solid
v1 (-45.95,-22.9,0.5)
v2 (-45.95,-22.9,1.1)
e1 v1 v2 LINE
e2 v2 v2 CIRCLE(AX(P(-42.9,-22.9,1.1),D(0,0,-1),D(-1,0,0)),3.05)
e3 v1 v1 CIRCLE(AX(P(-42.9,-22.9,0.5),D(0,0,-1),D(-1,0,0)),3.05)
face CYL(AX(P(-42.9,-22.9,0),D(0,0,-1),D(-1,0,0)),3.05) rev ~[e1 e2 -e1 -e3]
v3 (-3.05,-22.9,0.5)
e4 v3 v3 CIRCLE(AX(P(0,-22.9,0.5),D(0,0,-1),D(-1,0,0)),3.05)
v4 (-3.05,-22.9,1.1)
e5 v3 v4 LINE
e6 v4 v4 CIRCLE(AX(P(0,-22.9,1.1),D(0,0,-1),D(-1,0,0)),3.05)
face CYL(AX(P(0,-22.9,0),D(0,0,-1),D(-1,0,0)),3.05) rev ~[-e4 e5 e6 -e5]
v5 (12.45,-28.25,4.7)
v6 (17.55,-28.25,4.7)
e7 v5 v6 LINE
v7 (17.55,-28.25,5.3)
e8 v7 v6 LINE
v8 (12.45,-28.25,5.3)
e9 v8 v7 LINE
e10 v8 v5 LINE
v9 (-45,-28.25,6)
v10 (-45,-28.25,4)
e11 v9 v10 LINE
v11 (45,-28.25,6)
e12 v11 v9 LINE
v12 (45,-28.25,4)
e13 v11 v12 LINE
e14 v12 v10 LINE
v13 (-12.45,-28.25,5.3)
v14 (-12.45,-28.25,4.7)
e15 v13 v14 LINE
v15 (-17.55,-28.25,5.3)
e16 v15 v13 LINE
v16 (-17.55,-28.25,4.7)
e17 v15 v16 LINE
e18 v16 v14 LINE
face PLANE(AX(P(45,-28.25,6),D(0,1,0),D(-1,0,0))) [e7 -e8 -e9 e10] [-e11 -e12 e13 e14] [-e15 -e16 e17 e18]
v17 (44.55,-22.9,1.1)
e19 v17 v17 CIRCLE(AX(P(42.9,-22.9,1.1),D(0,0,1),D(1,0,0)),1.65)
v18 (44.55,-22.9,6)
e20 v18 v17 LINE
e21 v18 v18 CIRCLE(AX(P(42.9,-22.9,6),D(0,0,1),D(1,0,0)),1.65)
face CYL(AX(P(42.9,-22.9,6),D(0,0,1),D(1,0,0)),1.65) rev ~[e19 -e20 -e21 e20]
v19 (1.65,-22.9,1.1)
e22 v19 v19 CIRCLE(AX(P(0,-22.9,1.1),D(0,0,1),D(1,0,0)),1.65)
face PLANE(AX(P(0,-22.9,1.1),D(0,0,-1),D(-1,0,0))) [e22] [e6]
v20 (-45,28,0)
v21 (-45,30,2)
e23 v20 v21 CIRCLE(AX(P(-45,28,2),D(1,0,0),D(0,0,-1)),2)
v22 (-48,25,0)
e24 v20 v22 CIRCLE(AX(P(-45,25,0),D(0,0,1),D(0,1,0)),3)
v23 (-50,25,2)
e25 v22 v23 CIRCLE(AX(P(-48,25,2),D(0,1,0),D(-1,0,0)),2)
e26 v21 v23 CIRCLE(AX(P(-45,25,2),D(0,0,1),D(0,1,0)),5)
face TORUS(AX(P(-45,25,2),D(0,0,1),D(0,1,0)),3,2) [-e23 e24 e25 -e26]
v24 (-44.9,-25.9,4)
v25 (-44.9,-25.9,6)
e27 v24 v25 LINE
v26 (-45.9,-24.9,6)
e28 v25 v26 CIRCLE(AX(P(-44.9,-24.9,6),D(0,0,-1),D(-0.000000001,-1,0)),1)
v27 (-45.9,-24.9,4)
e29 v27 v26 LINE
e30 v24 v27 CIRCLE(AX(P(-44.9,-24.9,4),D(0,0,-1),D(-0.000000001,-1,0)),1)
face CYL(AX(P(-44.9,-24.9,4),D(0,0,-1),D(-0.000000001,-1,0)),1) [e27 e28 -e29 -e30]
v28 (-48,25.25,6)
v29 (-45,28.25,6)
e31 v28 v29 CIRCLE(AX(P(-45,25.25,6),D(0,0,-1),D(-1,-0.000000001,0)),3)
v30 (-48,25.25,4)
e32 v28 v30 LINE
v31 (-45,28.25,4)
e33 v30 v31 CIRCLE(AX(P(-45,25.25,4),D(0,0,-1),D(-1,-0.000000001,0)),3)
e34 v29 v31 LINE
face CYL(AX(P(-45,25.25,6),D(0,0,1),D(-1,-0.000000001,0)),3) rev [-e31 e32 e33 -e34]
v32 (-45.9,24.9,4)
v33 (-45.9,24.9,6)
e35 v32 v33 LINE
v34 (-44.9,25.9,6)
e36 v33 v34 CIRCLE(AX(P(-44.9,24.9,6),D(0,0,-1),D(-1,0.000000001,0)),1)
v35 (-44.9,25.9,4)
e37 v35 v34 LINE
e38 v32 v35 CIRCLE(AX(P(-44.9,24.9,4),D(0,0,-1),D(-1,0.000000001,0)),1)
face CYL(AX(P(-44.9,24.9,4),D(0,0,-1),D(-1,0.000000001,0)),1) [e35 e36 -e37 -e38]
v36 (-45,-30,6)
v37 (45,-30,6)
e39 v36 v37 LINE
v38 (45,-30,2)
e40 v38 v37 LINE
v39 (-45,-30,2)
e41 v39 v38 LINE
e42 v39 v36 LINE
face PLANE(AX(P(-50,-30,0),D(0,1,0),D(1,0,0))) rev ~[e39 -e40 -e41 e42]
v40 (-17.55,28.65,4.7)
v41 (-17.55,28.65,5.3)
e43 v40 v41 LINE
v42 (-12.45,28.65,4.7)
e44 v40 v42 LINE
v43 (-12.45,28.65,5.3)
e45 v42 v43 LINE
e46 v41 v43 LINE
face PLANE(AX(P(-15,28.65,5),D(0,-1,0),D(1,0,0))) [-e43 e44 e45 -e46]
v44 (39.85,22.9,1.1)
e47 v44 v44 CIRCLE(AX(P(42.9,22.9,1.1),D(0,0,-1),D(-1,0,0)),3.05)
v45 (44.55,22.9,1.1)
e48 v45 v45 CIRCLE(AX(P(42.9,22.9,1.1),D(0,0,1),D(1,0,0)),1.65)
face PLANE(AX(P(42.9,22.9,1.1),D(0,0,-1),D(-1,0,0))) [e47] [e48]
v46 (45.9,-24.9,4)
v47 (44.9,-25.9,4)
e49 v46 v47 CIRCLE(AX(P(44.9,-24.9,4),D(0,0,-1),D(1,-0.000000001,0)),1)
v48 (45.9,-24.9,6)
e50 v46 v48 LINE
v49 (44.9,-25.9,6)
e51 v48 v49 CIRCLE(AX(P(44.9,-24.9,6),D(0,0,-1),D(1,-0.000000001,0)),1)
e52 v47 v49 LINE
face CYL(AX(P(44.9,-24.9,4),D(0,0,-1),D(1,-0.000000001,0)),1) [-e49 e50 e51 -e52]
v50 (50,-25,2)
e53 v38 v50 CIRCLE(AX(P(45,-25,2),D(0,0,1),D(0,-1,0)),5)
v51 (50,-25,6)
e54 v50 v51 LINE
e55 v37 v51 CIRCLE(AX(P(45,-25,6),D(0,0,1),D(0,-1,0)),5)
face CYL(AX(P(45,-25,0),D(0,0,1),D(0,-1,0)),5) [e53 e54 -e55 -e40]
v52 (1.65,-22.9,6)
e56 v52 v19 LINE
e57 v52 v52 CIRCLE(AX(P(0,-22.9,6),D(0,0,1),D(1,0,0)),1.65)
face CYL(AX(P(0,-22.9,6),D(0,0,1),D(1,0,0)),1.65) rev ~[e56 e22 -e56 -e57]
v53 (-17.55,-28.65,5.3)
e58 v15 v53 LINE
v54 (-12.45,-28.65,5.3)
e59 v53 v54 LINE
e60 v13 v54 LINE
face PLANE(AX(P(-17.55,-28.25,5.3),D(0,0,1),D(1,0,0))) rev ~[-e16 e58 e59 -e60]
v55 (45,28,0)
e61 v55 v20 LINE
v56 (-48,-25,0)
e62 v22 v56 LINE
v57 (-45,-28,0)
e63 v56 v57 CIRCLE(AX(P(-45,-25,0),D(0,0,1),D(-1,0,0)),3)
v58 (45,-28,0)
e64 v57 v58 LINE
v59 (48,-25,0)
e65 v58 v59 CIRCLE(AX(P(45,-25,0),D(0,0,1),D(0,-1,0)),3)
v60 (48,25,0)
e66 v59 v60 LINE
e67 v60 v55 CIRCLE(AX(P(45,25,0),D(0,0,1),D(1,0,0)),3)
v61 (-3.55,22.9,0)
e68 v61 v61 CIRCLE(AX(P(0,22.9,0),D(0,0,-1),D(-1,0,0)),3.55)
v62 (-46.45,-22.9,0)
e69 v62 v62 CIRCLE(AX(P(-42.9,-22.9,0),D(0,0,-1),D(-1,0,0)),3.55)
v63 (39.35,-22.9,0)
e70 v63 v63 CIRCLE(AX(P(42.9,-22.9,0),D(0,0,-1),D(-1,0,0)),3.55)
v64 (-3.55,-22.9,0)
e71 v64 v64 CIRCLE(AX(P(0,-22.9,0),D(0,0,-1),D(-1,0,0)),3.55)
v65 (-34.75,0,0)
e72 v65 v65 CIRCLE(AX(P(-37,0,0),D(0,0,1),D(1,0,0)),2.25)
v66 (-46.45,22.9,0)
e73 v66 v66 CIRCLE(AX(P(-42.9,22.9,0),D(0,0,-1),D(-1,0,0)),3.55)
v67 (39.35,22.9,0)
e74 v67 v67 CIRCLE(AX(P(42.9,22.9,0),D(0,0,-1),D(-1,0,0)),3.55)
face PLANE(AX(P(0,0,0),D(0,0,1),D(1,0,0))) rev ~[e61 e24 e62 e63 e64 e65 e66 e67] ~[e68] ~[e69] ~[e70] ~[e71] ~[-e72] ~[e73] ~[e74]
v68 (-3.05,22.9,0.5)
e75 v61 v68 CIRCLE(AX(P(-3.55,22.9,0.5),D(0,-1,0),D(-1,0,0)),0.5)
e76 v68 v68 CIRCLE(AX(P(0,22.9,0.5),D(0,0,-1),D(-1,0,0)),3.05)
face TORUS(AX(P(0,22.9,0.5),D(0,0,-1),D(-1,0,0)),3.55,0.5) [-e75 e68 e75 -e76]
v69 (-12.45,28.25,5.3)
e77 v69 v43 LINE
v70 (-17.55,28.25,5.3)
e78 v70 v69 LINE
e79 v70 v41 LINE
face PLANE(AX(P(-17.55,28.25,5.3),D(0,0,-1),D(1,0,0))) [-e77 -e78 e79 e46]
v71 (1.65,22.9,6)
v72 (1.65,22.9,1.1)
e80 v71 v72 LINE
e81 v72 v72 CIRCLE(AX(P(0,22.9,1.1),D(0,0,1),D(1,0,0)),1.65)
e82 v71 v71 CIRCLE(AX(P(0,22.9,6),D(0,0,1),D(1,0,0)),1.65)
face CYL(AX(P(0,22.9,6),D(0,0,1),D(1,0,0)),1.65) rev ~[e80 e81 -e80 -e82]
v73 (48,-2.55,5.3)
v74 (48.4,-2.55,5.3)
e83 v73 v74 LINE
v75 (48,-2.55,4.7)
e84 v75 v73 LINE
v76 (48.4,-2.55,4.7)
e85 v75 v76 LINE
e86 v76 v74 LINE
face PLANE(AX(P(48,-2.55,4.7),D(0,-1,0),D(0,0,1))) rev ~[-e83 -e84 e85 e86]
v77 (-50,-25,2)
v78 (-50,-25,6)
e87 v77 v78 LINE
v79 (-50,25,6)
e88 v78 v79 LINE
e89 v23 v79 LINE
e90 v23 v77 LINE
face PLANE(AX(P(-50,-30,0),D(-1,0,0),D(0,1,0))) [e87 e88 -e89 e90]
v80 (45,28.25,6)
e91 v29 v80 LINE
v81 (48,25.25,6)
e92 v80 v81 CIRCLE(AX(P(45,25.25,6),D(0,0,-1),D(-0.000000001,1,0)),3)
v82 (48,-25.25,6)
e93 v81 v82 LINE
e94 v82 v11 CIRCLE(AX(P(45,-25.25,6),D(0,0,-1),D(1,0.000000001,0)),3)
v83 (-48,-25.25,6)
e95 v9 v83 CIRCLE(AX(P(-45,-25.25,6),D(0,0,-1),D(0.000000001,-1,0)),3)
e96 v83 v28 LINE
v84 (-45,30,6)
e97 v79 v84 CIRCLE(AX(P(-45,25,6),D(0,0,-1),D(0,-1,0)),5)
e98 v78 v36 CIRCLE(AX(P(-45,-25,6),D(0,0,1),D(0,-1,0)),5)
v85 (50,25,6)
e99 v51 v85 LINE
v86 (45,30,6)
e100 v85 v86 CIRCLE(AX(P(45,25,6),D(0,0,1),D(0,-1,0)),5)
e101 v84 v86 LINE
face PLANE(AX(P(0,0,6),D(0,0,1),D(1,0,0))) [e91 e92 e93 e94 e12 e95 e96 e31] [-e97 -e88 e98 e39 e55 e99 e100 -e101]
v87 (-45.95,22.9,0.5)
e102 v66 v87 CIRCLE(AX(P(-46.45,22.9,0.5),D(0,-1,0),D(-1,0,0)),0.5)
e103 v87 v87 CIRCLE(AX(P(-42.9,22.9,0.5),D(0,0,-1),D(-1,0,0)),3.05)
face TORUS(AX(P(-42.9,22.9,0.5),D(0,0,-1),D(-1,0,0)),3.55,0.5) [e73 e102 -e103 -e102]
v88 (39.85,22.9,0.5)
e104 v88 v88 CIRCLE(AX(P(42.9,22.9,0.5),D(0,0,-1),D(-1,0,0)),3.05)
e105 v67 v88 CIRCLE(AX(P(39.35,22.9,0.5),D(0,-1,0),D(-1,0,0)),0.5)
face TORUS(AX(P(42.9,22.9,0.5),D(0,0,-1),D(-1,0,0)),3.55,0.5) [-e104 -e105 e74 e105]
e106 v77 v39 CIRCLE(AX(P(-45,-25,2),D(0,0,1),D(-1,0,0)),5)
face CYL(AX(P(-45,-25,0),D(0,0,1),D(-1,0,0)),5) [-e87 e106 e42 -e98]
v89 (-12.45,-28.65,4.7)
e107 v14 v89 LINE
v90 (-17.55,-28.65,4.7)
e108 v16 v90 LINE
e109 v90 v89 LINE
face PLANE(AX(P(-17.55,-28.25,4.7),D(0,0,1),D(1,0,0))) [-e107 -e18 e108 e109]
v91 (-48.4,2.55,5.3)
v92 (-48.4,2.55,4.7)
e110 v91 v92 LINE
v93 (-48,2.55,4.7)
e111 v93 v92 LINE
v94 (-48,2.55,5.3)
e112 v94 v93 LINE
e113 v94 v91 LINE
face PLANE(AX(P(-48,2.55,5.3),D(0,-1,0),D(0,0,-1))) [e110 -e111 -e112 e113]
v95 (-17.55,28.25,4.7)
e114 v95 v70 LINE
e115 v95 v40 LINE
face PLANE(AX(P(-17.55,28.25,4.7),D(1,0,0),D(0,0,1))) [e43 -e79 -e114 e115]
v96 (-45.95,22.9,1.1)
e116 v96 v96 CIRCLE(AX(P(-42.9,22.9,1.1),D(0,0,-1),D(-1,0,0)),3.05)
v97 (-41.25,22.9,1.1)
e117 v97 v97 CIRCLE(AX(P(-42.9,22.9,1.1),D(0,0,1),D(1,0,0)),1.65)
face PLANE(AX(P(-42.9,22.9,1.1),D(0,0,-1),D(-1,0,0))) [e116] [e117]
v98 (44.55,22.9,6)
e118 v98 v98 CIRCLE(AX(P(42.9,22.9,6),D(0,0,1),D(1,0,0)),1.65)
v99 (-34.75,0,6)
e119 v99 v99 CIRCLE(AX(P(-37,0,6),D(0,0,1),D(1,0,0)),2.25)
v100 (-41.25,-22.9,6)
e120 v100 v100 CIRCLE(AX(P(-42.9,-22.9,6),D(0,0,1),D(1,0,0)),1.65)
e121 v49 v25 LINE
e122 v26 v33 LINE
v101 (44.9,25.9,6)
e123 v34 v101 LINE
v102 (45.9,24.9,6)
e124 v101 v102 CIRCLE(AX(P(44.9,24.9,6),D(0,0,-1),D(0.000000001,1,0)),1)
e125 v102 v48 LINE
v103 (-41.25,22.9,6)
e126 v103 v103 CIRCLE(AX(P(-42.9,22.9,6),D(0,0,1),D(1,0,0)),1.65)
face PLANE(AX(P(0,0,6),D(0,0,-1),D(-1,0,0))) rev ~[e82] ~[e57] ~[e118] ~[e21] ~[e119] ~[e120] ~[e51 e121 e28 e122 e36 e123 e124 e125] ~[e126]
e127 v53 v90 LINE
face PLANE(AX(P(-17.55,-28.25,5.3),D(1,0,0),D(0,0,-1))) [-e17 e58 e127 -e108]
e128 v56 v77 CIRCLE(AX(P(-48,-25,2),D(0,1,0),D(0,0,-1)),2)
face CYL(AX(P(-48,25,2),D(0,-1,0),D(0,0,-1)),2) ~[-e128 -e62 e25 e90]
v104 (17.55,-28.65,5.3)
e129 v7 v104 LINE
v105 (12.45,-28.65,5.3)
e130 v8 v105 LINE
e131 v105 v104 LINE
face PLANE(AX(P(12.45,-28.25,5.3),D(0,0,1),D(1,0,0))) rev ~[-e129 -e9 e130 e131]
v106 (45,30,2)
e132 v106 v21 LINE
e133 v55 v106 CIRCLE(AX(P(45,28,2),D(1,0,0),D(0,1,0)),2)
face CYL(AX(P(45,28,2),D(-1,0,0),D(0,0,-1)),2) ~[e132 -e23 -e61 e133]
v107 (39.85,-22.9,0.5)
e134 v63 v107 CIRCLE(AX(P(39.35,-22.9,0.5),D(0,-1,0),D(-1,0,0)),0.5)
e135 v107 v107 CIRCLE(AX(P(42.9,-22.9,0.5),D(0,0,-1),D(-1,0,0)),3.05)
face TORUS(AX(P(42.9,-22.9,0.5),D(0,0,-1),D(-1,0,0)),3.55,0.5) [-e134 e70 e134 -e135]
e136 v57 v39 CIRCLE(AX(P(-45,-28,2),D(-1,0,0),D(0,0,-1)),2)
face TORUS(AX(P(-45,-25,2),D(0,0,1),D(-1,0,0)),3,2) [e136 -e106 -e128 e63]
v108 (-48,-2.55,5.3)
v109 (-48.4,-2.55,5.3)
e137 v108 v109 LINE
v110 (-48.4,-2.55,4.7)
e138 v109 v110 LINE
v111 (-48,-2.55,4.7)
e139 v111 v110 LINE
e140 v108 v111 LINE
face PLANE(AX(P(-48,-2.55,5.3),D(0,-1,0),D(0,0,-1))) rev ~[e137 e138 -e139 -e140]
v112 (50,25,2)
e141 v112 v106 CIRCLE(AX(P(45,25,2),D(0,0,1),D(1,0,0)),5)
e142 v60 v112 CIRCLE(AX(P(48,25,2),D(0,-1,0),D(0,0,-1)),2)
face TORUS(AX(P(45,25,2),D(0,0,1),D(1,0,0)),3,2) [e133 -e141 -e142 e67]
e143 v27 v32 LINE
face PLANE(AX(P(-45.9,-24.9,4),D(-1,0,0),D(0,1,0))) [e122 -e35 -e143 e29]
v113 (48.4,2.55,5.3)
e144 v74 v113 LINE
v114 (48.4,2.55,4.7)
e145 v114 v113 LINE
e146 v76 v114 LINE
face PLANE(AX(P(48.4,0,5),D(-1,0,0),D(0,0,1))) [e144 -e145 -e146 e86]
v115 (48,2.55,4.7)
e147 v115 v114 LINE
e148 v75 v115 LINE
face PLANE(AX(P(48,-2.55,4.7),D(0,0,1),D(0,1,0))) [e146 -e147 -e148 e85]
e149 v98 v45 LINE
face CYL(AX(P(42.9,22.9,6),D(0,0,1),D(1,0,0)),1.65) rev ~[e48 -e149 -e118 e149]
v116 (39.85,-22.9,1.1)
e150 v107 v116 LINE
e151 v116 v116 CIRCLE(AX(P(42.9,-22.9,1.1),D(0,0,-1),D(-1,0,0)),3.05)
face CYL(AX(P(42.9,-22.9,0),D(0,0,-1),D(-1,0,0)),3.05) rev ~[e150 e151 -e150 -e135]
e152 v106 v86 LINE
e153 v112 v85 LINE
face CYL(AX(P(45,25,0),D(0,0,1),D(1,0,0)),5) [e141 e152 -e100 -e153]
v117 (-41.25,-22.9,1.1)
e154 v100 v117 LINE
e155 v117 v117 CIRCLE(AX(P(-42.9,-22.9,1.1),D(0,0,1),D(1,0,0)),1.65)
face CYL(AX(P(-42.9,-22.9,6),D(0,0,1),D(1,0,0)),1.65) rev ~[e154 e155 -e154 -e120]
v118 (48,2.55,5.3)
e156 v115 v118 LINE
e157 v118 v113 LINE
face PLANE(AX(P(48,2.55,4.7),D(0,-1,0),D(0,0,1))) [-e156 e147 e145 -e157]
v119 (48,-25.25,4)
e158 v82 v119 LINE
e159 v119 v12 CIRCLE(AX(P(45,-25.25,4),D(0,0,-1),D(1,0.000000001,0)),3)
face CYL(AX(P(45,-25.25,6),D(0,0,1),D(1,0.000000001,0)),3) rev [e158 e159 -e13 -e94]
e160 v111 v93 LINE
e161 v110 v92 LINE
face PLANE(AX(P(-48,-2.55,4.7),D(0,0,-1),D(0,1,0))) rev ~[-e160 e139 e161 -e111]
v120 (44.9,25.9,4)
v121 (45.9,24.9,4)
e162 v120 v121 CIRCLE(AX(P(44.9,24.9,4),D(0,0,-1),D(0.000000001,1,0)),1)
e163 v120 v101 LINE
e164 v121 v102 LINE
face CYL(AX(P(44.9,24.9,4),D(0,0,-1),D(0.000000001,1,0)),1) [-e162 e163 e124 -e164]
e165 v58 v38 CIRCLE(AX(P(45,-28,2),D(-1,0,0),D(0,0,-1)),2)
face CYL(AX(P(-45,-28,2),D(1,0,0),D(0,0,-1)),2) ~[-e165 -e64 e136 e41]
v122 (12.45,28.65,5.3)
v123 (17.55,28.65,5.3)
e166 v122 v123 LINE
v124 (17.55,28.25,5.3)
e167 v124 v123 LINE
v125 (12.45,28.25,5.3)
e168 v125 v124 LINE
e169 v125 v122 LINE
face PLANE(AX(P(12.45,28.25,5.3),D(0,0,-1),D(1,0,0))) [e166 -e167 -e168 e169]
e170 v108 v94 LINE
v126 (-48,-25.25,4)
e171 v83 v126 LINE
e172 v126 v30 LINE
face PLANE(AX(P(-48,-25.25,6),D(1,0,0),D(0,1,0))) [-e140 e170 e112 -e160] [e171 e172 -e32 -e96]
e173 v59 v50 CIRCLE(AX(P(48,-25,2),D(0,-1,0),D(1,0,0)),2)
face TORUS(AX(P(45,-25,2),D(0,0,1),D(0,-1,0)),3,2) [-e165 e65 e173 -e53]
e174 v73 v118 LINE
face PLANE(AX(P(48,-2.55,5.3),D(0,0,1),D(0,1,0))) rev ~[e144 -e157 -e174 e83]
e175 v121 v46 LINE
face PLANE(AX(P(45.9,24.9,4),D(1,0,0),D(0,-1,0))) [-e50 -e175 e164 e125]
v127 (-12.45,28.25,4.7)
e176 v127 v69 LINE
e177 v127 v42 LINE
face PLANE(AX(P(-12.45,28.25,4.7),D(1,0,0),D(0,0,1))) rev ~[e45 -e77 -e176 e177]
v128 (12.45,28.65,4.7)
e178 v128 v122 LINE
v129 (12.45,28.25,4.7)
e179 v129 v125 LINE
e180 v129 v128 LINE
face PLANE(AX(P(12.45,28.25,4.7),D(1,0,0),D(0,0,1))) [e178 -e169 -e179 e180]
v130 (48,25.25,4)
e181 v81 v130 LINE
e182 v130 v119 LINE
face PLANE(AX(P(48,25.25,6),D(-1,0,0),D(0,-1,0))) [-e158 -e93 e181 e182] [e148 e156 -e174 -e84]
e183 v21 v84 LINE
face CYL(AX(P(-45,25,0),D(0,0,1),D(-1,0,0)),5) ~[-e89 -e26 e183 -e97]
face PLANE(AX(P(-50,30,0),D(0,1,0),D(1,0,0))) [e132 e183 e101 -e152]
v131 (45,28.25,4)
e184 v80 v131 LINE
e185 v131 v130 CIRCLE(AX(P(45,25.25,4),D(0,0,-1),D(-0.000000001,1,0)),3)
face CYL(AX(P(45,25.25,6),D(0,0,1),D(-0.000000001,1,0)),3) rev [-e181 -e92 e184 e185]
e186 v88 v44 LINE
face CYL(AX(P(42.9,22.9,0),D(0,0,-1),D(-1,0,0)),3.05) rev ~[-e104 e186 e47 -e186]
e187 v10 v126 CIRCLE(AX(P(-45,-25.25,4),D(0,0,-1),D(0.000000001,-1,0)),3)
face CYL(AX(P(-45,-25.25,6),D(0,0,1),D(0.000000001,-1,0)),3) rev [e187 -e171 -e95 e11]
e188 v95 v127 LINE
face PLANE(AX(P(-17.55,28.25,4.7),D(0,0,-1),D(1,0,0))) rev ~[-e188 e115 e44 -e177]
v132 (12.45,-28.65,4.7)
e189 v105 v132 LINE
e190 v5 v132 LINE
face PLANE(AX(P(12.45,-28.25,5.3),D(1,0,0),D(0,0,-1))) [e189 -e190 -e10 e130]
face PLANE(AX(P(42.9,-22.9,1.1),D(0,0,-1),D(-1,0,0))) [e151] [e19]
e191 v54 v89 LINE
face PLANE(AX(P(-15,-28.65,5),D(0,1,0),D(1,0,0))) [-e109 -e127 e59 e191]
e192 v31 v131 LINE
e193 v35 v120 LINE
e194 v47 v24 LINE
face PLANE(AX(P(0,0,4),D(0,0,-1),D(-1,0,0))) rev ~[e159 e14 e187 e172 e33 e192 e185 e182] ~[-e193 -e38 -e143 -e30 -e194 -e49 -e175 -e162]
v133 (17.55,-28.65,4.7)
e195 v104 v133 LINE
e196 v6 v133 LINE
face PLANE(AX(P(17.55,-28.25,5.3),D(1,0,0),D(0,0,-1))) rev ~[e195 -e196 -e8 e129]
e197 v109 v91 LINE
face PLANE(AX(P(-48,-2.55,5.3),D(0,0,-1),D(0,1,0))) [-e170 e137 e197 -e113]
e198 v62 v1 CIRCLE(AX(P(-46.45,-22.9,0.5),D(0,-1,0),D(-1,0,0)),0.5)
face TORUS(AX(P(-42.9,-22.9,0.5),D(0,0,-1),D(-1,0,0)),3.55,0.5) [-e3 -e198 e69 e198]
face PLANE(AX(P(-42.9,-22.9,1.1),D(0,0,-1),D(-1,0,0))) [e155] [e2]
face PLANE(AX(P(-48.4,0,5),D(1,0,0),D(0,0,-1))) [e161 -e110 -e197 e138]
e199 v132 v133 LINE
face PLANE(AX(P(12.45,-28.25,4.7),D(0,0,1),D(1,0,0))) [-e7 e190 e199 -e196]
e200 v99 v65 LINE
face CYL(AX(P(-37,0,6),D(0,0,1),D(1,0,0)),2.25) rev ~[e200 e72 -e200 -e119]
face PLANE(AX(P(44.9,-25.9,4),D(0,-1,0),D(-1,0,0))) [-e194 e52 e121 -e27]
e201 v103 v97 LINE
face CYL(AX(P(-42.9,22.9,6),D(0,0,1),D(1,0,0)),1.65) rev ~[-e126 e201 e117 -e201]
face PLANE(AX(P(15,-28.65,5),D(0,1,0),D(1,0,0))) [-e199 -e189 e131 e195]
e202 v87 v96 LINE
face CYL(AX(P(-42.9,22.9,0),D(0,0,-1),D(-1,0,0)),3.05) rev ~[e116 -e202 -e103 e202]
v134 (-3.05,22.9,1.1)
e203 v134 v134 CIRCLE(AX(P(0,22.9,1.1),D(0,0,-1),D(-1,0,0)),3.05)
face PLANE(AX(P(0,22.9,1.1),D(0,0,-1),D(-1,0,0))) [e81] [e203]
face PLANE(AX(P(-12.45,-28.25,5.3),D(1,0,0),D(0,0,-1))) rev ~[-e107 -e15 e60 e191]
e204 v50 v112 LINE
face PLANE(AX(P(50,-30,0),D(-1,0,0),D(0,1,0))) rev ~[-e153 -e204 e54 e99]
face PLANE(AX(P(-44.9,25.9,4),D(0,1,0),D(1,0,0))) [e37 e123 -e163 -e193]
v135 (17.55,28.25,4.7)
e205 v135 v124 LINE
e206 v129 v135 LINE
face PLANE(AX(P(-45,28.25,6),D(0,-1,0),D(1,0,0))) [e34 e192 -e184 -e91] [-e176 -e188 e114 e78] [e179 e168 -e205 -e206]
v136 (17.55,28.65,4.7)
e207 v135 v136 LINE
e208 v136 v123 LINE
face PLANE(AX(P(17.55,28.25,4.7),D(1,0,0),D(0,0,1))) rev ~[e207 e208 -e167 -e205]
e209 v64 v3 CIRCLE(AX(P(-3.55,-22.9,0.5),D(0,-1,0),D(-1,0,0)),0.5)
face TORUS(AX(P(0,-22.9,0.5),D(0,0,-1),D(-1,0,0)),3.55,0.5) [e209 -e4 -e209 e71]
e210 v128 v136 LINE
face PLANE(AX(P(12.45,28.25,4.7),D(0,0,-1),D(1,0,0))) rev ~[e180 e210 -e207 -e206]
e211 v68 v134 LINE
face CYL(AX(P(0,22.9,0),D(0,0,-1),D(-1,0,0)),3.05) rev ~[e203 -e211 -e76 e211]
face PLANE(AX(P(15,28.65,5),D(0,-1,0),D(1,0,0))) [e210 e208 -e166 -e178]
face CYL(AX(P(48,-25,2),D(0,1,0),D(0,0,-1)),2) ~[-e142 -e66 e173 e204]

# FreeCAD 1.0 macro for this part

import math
import FreeCAD as App
import Part
import Sketcher
Q = App.Units.Quantity


def edges_at(feature, points):
    """Names of the edges that pass closest to the given points."""
    edges = feature.Shape.Edges
    near = lambda p: min(range(len(edges)), key=lambda i: edges[i].distToShape(Part.Vertex(*p))[0])
    return sorted({f"Edge{near(p) + 1}" for p in points})

doc = App.newDocument("Part")
body = doc.addObject("PartDesign::Body", "Body")

# Sketch on XY plane
sketch1 = doc.addObject("Sketcher::SketchObject", "Sketch")
body.addObject(sketch1)
sketch1.AttachmentSupport = (doc.XY_Plane, [""])
sketch1.MapMode = "FlatFace"
sketch1.addGeometry([
    Part.LineSegment(App.Vector(-50, 30, 0), App.Vector(-50, -30, 0)),
    Part.LineSegment(App.Vector(-50, -30, 0), App.Vector(50, -30, 0)),
    Part.LineSegment(App.Vector(50, -30, 0), App.Vector(50, 30, 0)),
    Part.LineSegment(App.Vector(50, 30, 0), App.Vector(-50, 30, 0)),
], False)
sketch1.addConstraint([
    Sketcher.Constraint("Coincident", 0, 2, 1, 1),
    Sketcher.Constraint("Coincident", 1, 2, 2, 1),
    Sketcher.Constraint("Coincident", 2, 2, 3, 1),
    Sketcher.Constraint("Coincident", 3, 2, 0, 1),
    Sketcher.Constraint("Vertical", 0),
    Sketcher.Constraint("Horizontal", 1),
    Sketcher.Constraint("Vertical", 2),
    Sketcher.Constraint("Horizontal", 3),
    Sketcher.Constraint("Symmetric", 0, 2, 2, 2, -1, 1),
    Sketcher.Constraint("DistanceX", 1, 1, 1, 2, Q("100 mm")),
    Sketcher.Constraint("DistanceY", 0, 2, 0, 1, Q("60 mm")),
])
pad1 = doc.addObject("PartDesign::Pad", "Pad")
body.addObject(pad1)
pad1.Profile = sketch1
pad1.Length = 6
doc.recompute()

fillet = doc.addObject("PartDesign::Fillet", "Fillet")
body.addObject(fillet)
fillet.Base = (pad1, edges_at(pad1, [
    (-50, 30, 3),
    (50, 30, 3),
    (50, -30, 3),
    (-50, -30, 3),
]))
fillet.Radius = 5
doc.recompute()

fillet2 = doc.addObject("PartDesign::Fillet", "Fillet001")
body.addObject(fillet2)
fillet2.Base = (fillet, edges_at(fillet, [
    (0, -30, 0),
    (-50, 0, 0),
    (0, 30, 0),
    (50, 0, 0),
    (-48.536, 28.536, 0),
    (48.536, 28.536, 0),
    (48.536, -28.536, 0),
    (-48.536, -28.536, 0),
]))
fillet2.Radius = 2

# Sketch on XY plane
sketch2 = doc.addObject("Sketcher::SketchObject", "Sketch001")
body.addObject(sketch2)
sketch2.AttachmentSupport = (doc.XY_Plane, [""])
sketch2.MapMode = "FlatFace"
sketch2.AttachmentOffset = App.Placement(App.Vector(0, 0, 6), App.Rotation())
sketch2.addGeometry([
    Part.LineSegment(App.Vector(45, 28.2, 0), App.Vector(-45, 28.2, 0)),  # 0
    Part.ArcOfCircle(Part.Circle(App.Vector(-45, 25.3, 0), App.Vector(0, 0, 1), 3), math.radians(90), math.radians(180)),  # 1
    Part.LineSegment(App.Vector(-48, 25.2, 0), App.Vector(-48, -25.2, 0)),  # 2
    Part.ArcOfCircle(Part.Circle(App.Vector(-45, -25.3, 0), App.Vector(0, 0, 1), 3), math.radians(180), math.radians(270)),  # 3
    Part.LineSegment(App.Vector(-45, -28.2, 0), App.Vector(45, -28.2, 0)),  # 4
    Part.ArcOfCircle(Part.Circle(App.Vector(45, -25.3, 0), App.Vector(0, 0, 1), 3), math.radians(-90), math.radians(0)),  # 5
    Part.LineSegment(App.Vector(48, -25.2, 0), App.Vector(48, 25.2, 0)),  # 6
    Part.ArcOfCircle(Part.Circle(App.Vector(45, 25.3, 0), App.Vector(0, 0, 1), 3), math.radians(0), math.radians(90)),  # 7
], False)
sketch2.addConstraint([
    Sketcher.Constraint("Tangent", 0, 2, 1, 1),
    Sketcher.Constraint("Tangent", 1, 2, 2, 1),
    Sketcher.Constraint("Tangent", 2, 2, 3, 1),
    Sketcher.Constraint("Tangent", 3, 2, 4, 1),
    Sketcher.Constraint("Tangent", 4, 2, 5, 1),
    Sketcher.Constraint("Tangent", 5, 2, 6, 1),
    Sketcher.Constraint("Tangent", 6, 2, 7, 1),
    Sketcher.Constraint("Tangent", 7, 2, 0, 1),
    Sketcher.Constraint("Horizontal", 0),
    Sketcher.Constraint("Vertical", 2),
    Sketcher.Constraint("Horizontal", 4),
    Sketcher.Constraint("Vertical", 6),
    Sketcher.Constraint("Equal", 1, 3),
    Sketcher.Constraint("Equal", 3, 5),
    Sketcher.Constraint("Equal", 5, 7),
    Sketcher.Constraint("Symmetric", 1, 3, 5, 3, -1, 1),
    Sketcher.Constraint("Radius", 1, Q("3 mm")),
    Sketcher.Constraint("DistanceX", 0, 2, 0, 1, Q("90 mm")),
    Sketcher.Constraint("DistanceY", 2, 2, 2, 1, Q("50.5 mm")),
])
pocket1 = doc.addObject("PartDesign::Pocket", "Pocket")
body.addObject(pocket1)
pocket1.Profile = sketch2
pocket1.Length = 2

# Sketch on XZ plane
sketch3 = doc.addObject("Sketcher::SketchObject", "Sketch002")
body.addObject(sketch3)
sketch3.AttachmentSupport = (doc.XZ_Plane, [""])
sketch3.MapMode = "FlatFace"
sketch3.AttachmentOffset = App.Placement(App.Vector(0, 0, 28.25), App.Rotation())
sketch3.addGeometry([
    Part.LineSegment(App.Vector(12.4, 4.7, 0), App.Vector(12.4, 5.3, 0)),  # 0
    Part.LineSegment(App.Vector(12.4, 5.3, 0), App.Vector(17.6, 5.3, 0)),  # 1
    Part.LineSegment(App.Vector(17.6, 5.3, 0), App.Vector(17.6, 4.7, 0)),  # 2
    Part.LineSegment(App.Vector(17.6, 4.7, 0), App.Vector(12.4, 4.7, 0)),  # 3
    Part.LineSegment(App.Vector(-17.6, 4.7, 0), App.Vector(-17.6, 5.3, 0)),  # 4
    Part.LineSegment(App.Vector(-17.6, 5.3, 0), App.Vector(-12.4, 5.3, 0)),  # 5
    Part.LineSegment(App.Vector(-12.4, 5.3, 0), App.Vector(-12.4, 4.7, 0)),  # 6
    Part.LineSegment(App.Vector(-12.4, 4.7, 0), App.Vector(-17.6, 4.7, 0)),  # 7
], False)
sketch3.addConstraint([
    Sketcher.Constraint("Coincident", 0, 2, 1, 1),
    Sketcher.Constraint("Coincident", 1, 2, 2, 1),
    Sketcher.Constraint("Coincident", 2, 2, 3, 1),
    Sketcher.Constraint("Coincident", 3, 2, 0, 1),
    Sketcher.Constraint("Coincident", 4, 2, 5, 1),
    Sketcher.Constraint("Coincident", 5, 2, 6, 1),
    Sketcher.Constraint("Coincident", 6, 2, 7, 1),
    Sketcher.Constraint("Coincident", 7, 2, 4, 1),
    Sketcher.Constraint("Vertical", 0),
    Sketcher.Constraint("Horizontal", 1),
    Sketcher.Constraint("Vertical", 2),
    Sketcher.Constraint("Horizontal", 3),
    Sketcher.Constraint("Vertical", 4),
    Sketcher.Constraint("Horizontal", 5),
    Sketcher.Constraint("Vertical", 6),
    Sketcher.Constraint("Horizontal", 7),
    Sketcher.Constraint("Symmetric", 1, 2, 4, 2, -2),
    Sketcher.Constraint("Symmetric", 3, 2, 6, 2, -2),
    Sketcher.Constraint("DistanceX", 1, 1, 1, 2, Q("5.1 mm")),
    Sketcher.Constraint("DistanceY", 0, 1, 0, 2, Q("0.6 mm")),
    Sketcher.Constraint("DistanceX", 4, 2, 0, 2, Q("30 mm")),
    Sketcher.Constraint("DistanceY", -1, 1, 0, 2, Q("5.3 mm")),
])
pocket2 = doc.addObject("PartDesign::Pocket", "Pocket001")
body.addObject(pocket2)
pocket2.Profile = sketch3
pocket2.Length = 0.4
pocket2.Reversed = True

# Sketch on XZ plane
sketch4 = doc.addObject("Sketcher::SketchObject", "Sketch003")
body.addObject(sketch4)
sketch4.AttachmentSupport = (doc.XZ_Plane, [""])
sketch4.MapMode = "FlatFace"
sketch4.AttachmentOffset = App.Placement(App.Vector(0, 0, -28.25), App.Rotation())
sketch4.addGeometry([
    Part.LineSegment(App.Vector(-17.6, 5.3, 0), App.Vector(-17.6, 4.7, 0)),  # 0
    Part.LineSegment(App.Vector(-17.6, 4.7, 0), App.Vector(-12.4, 4.7, 0)),  # 1
    Part.LineSegment(App.Vector(-12.4, 4.7, 0), App.Vector(-12.4, 5.3, 0)),  # 2
    Part.LineSegment(App.Vector(-12.4, 5.3, 0), App.Vector(-17.6, 5.3, 0)),  # 3
    Part.LineSegment(App.Vector(12.4, 5.3, 0), App.Vector(12.4, 4.7, 0)),  # 4
    Part.LineSegment(App.Vector(12.4, 4.7, 0), App.Vector(17.6, 4.7, 0)),  # 5
    Part.LineSegment(App.Vector(17.6, 4.7, 0), App.Vector(17.6, 5.3, 0)),  # 6
    Part.LineSegment(App.Vector(17.6, 5.3, 0), App.Vector(12.4, 5.3, 0)),  # 7
], False)
sketch4.addConstraint([
    Sketcher.Constraint("Coincident", 0, 2, 1, 1),
    Sketcher.Constraint("Coincident", 1, 2, 2, 1),
    Sketcher.Constraint("Coincident", 2, 2, 3, 1),
    Sketcher.Constraint("Coincident", 3, 2, 0, 1),
    Sketcher.Constraint("Coincident", 4, 2, 5, 1),
    Sketcher.Constraint("Coincident", 5, 2, 6, 1),
    Sketcher.Constraint("Coincident", 6, 2, 7, 1),
    Sketcher.Constraint("Coincident", 7, 2, 4, 1),
    Sketcher.Constraint("Vertical", 0),
    Sketcher.Constraint("Horizontal", 1),
    Sketcher.Constraint("Vertical", 2),
    Sketcher.Constraint("Horizontal", 3),
    Sketcher.Constraint("Vertical", 4),
    Sketcher.Constraint("Horizontal", 5),
    Sketcher.Constraint("Vertical", 6),
    Sketcher.Constraint("Horizontal", 7),
    Sketcher.Constraint("Symmetric", 1, 2, 4, 2, -2),
    Sketcher.Constraint("Symmetric", 3, 2, 6, 2, -2),
    Sketcher.Constraint("DistanceX", 1, 1, 1, 2, Q("5.1 mm")),
    Sketcher.Constraint("DistanceY", 0, 2, 0, 1, Q("0.6 mm")),
    Sketcher.Constraint("DistanceX", 0, 2, 4, 2, Q("30 mm")),
    Sketcher.Constraint("DistanceY", -1, 1, 0, 2, Q("4.7 mm")),
])
pocket3 = doc.addObject("PartDesign::Pocket", "Pocket002")
body.addObject(pocket3)
pocket3.Profile = sketch4
pocket3.Length = 0.4

# Sketch on YZ plane
sketch5 = doc.addObject("Sketcher::SketchObject", "Sketch004")
body.addObject(sketch5)
sketch5.AttachmentSupport = (doc.YZ_Plane, [""])
sketch5.MapMode = "FlatFace"
sketch5.AttachmentOffset = App.Placement(App.Vector(0, 0, -48), App.Rotation())
sketch5.addGeometry([
    Part.LineSegment(App.Vector(2.5, 5.3, 0), App.Vector(-2.5, 5.3, 0)),
    Part.LineSegment(App.Vector(-2.5, 5.3, 0), App.Vector(-2.5, 4.7, 0)),
    Part.LineSegment(App.Vector(-2.5, 4.7, 0), App.Vector(2.5, 4.7, 0)),
    Part.LineSegment(App.Vector(2.5, 4.7, 0), App.Vector(2.5, 5.3, 0)),
], False)
sketch5.addConstraint([
    Sketcher.Constraint("Coincident", 0, 2, 1, 1),
    Sketcher.Constraint("Coincident", 1, 2, 2, 1),
    Sketcher.Constraint("Coincident", 2, 2, 3, 1),
    Sketcher.Constraint("Coincident", 3, 2, 0, 1),
    Sketcher.Constraint("Horizontal", 0),
    Sketcher.Constraint("Vertical", 1),
    Sketcher.Constraint("Horizontal", 2),
    Sketcher.Constraint("Vertical", 3),
    Sketcher.Constraint("DistanceX", 0, 2, 0, 1, Q("5.1 mm")),
    Sketcher.Constraint("DistanceY", 1, 2, 1, 1, Q("0.6 mm")),
    Sketcher.Constraint("DistanceY", -1, 1, 0, 2, Q("5.3 mm")),
    Sketcher.Constraint("DistanceX", 0, 2, -1, 1, Q("2.55 mm")),
])
pocket4 = doc.addObject("PartDesign::Pocket", "Pocket003")
body.addObject(pocket4)
pocket4.Profile = sketch5
pocket4.Length = 0.4

# Sketch on YZ plane
sketch6 = doc.addObject("Sketcher::SketchObject", "Sketch005")
body.addObject(sketch6)
sketch6.AttachmentSupport = (doc.YZ_Plane, [""])
sketch6.MapMode = "FlatFace"
sketch6.AttachmentOffset = App.Placement(App.Vector(0, 0, 48), App.Rotation())
sketch6.addGeometry([
    Part.LineSegment(App.Vector(2.5, 4.7, 0), App.Vector(-2.5, 4.7, 0)),
    Part.LineSegment(App.Vector(-2.5, 4.7, 0), App.Vector(-2.5, 5.3, 0)),
    Part.LineSegment(App.Vector(-2.5, 5.3, 0), App.Vector(2.5, 5.3, 0)),
    Part.LineSegment(App.Vector(2.5, 5.3, 0), App.Vector(2.5, 4.7, 0)),
], False)
sketch6.addConstraint([
    Sketcher.Constraint("Coincident", 0, 2, 1, 1),
    Sketcher.Constraint("Coincident", 1, 2, 2, 1),
    Sketcher.Constraint("Coincident", 2, 2, 3, 1),
    Sketcher.Constraint("Coincident", 3, 2, 0, 1),
    Sketcher.Constraint("Horizontal", 0),
    Sketcher.Constraint("Vertical", 1),
    Sketcher.Constraint("Horizontal", 2),
    Sketcher.Constraint("Vertical", 3),
    Sketcher.Constraint("DistanceX", 0, 2, 0, 1, Q("5.1 mm")),
    Sketcher.Constraint("DistanceY", 1, 1, 1, 2, Q("0.6 mm")),
    Sketcher.Constraint("DistanceY", -1, 1, 0, 2, Q("4.7 mm")),
    Sketcher.Constraint("DistanceX", 0, 2, -1, 1, Q("2.55 mm")),
])
pocket5 = doc.addObject("PartDesign::Pocket", "Pocket004")
body.addObject(pocket5)
pocket5.Profile = sketch6
pocket5.Length = 0.4
pocket5.Reversed = True

# Sketch on XY plane
sketch7 = doc.addObject("Sketcher::SketchObject", "Sketch006")
body.addObject(sketch7)
sketch7.AttachmentSupport = (doc.XY_Plane, [""])
sketch7.MapMode = "FlatFace"
sketch7.AttachmentOffset = App.Placement(App.Vector(0, 0, 4), App.Rotation())
sketch7.addGeometry([
    Part.LineSegment(App.Vector(-44.9, -25.9, 0), App.Vector(44.9, -25.9, 0)),  # 0
    Part.ArcOfCircle(Part.Circle(App.Vector(44.9, -24.9, 0), App.Vector(0, 0, 1), 1), math.radians(-90), math.radians(0)),  # 1
    Part.LineSegment(App.Vector(45.9, -24.9, 0), App.Vector(45.9, 24.9, 0)),  # 2
    Part.ArcOfCircle(Part.Circle(App.Vector(44.9, 24.9, 0), App.Vector(0, 0, 1), 1), math.radians(0), math.radians(90)),  # 3
    Part.LineSegment(App.Vector(44.9, 25.9, 0), App.Vector(-44.9, 25.9, 0)),  # 4
    Part.ArcOfCircle(Part.Circle(App.Vector(-44.9, 24.9, 0), App.Vector(0, 0, 1), 1), math.radians(90), math.radians(180)),  # 5
    Part.LineSegment(App.Vector(-45.9, 24.9, 0), App.Vector(-45.9, -24.9, 0)),  # 6
    Part.ArcOfCircle(Part.Circle(App.Vector(-44.9, -24.9, 0), App.Vector(0, 0, 1), 1), math.radians(-180), math.radians(-90)),  # 7
], False)
sketch7.addConstraint([
    Sketcher.Constraint("Tangent", 0, 2, 1, 1),
    Sketcher.Constraint("Tangent", 1, 2, 2, 1),
    Sketcher.Constraint("Tangent", 2, 2, 3, 1),
    Sketcher.Constraint("Tangent", 3, 2, 4, 1),
    Sketcher.Constraint("Tangent", 4, 2, 5, 1),
    Sketcher.Constraint("Tangent", 5, 2, 6, 1),
    Sketcher.Constraint("Tangent", 6, 2, 7, 1),
    Sketcher.Constraint("Tangent", 7, 2, 0, 1),
    Sketcher.Constraint("Horizontal", 0),
    Sketcher.Constraint("Vertical", 2),
    Sketcher.Constraint("Horizontal", 4),
    Sketcher.Constraint("Vertical", 6),
    Sketcher.Constraint("Equal", 1, 3),
    Sketcher.Constraint("Equal", 3, 5),
    Sketcher.Constraint("Equal", 5, 7),
    Sketcher.Constraint("Symmetric", 1, 3, 5, 3, -1, 1),
    Sketcher.Constraint("Radius", 1, Q("1 mm")),
    Sketcher.Constraint("DistanceX", 0, 1, 0, 2, Q("89.8 mm")),
    Sketcher.Constraint("DistanceY", 2, 1, 2, 2, Q("49.8 mm")),
])
pad2 = doc.addObject("PartDesign::Pad", "Pad001")
body.addObject(pad2)
pad2.Profile = sketch7
pad2.Length = 2

# Sketch on XY plane
sketch8 = doc.addObject("Sketcher::SketchObject", "Sketch007")
body.addObject(sketch8)
sketch8.AttachmentSupport = (doc.XY_Plane, [""])
sketch8.MapMode = "FlatFace"
sketch8.AttachmentOffset = App.Placement(App.Vector(0, 0, 6), App.Rotation())
sketch8.addGeometry(Part.Circle(App.Vector(42.9, 22.9, 0), App.Vector(0, 0, 1), 1.6), False)
sketch8.addConstraint([
    Sketcher.Constraint("Diameter", 0, Q("3.3 mm")),
    Sketcher.Constraint("DistanceX", -1, 1, 0, 3, Q("42.9 mm")),
    Sketcher.Constraint("DistanceY", -1, 1, 0, 3, Q("22.9 mm")),
])
pocket6 = doc.addObject("PartDesign::Pocket", "Pocket005")
body.addObject(pocket6)
pocket6.Profile = sketch8
pocket6.Type = "UpToFirst"

# Sketch on XY plane
sketch9 = doc.addObject("Sketcher::SketchObject", "Sketch008")
body.addObject(sketch9)
sketch9.AttachmentSupport = (doc.XY_Plane, [""])
sketch9.MapMode = "FlatFace"
sketch9.AttachmentOffset = App.Placement(App.Vector(0, 0, 6), App.Rotation())
sketch9.addGeometry(Part.Circle(App.Vector(0, 22.9, 0), App.Vector(0, 0, 1), 1.6), False)
sketch9.addConstraint([
    Sketcher.Constraint("PointOnObject", 0, 3, -2),
    Sketcher.Constraint("Diameter", 0, Q("3.3 mm")),
    Sketcher.Constraint("DistanceY", -1, 1, 0, 3, Q("22.9 mm")),
])
pocket7 = doc.addObject("PartDesign::Pocket", "Pocket006")
body.addObject(pocket7)
pocket7.Profile = sketch9
pocket7.Type = "UpToFirst"

# Sketch on XY plane
sketch10 = doc.addObject("Sketcher::SketchObject", "Sketch009")
body.addObject(sketch10)
sketch10.AttachmentSupport = (doc.XY_Plane, [""])
sketch10.MapMode = "FlatFace"
sketch10.AttachmentOffset = App.Placement(App.Vector(0, 0, 6), App.Rotation())
sketch10.addGeometry(Part.Circle(App.Vector(-42.9, 22.9, 0), App.Vector(0, 0, 1), 1.6), False)
sketch10.addConstraint([
    Sketcher.Constraint("Diameter", 0, Q("3.3 mm")),
    Sketcher.Constraint("DistanceX", 0, 3, -1, 1, Q("42.9 mm")),
    Sketcher.Constraint("DistanceY", -1, 1, 0, 3, Q("22.9 mm")),
])
pocket8 = doc.addObject("PartDesign::Pocket", "Pocket007")
body.addObject(pocket8)
pocket8.Profile = sketch10
pocket8.Type = "UpToFirst"

# Sketch on XY plane
sketch11 = doc.addObject("Sketcher::SketchObject", "Sketch010")
body.addObject(sketch11)
sketch11.AttachmentSupport = (doc.XY_Plane, [""])
sketch11.MapMode = "FlatFace"
sketch11.AttachmentOffset = App.Placement(App.Vector(0, 0, 6), App.Rotation())
sketch11.addGeometry(Part.Circle(App.Vector(-42.9, -22.9, 0), App.Vector(0, 0, 1), 1.6), False)
sketch11.addConstraint([
    Sketcher.Constraint("Diameter", 0, Q("3.3 mm")),
    Sketcher.Constraint("DistanceX", 0, 3, -1, 1, Q("42.9 mm")),
    Sketcher.Constraint("DistanceY", 0, 3, -1, 1, Q("22.9 mm")),
])
pocket9 = doc.addObject("PartDesign::Pocket", "Pocket008")
body.addObject(pocket9)
pocket9.Profile = sketch11
pocket9.Type = "UpToFirst"

# Sketch on XY plane
sketch12 = doc.addObject("Sketcher::SketchObject", "Sketch011")
body.addObject(sketch12)
sketch12.AttachmentSupport = (doc.XY_Plane, [""])
sketch12.MapMode = "FlatFace"
sketch12.AttachmentOffset = App.Placement(App.Vector(0, 0, 6), App.Rotation())
sketch12.addGeometry(Part.Circle(App.Vector(0, -22.9, 0), App.Vector(0, 0, 1), 1.6), False)
sketch12.addConstraint([
    Sketcher.Constraint("PointOnObject", 0, 3, -2),
    Sketcher.Constraint("Diameter", 0, Q("3.3 mm")),
    Sketcher.Constraint("DistanceY", 0, 3, -1, 1, Q("22.9 mm")),
])
pocket10 = doc.addObject("PartDesign::Pocket", "Pocket009")
body.addObject(pocket10)
pocket10.Profile = sketch12
pocket10.Type = "UpToFirst"

# Sketch on XY plane
sketch13 = doc.addObject("Sketcher::SketchObject", "Sketch012")
body.addObject(sketch13)
sketch13.AttachmentSupport = (doc.XY_Plane, [""])
sketch13.MapMode = "FlatFace"
sketch13.AttachmentOffset = App.Placement(App.Vector(0, 0, 6), App.Rotation())
sketch13.addGeometry(Part.Circle(App.Vector(42.9, -22.9, 0), App.Vector(0, 0, 1), 1.6), False)
sketch13.addConstraint([
    Sketcher.Constraint("Diameter", 0, Q("3.3 mm")),
    Sketcher.Constraint("DistanceX", -1, 1, 0, 3, Q("42.9 mm")),
    Sketcher.Constraint("DistanceY", 0, 3, -1, 1, Q("22.9 mm")),
])
pocket11 = doc.addObject("PartDesign::Pocket", "Pocket010")
body.addObject(pocket11)
pocket11.Profile = sketch13
pocket11.Type = "UpToFirst"

# Sketch on XY plane
sketch14 = doc.addObject("Sketcher::SketchObject", "Sketch013")
body.addObject(sketch14)
sketch14.AttachmentSupport = (doc.XY_Plane, [""])
sketch14.MapMode = "FlatFace"
sketch14.addGeometry([
    Part.Circle(App.Vector(-42.9, 22.9, 0), App.Vector(0, 0, 1), 3),  # 0
    Part.Circle(App.Vector(0, 22.9, 0), App.Vector(0, 0, 1), 3),  # 1
    Part.Circle(App.Vector(42.9, 22.9, 0), App.Vector(0, 0, 1), 3),  # 2
    Part.Circle(App.Vector(42.9, -22.9, 0), App.Vector(0, 0, 1), 3),  # 3
    Part.Circle(App.Vector(0, -22.9, 0), App.Vector(0, 0, 1), 3),  # 4
    Part.Circle(App.Vector(-42.9, -22.9, 0), App.Vector(0, 0, 1), 3),  # 5
], False)
sketch14.addConstraint([
    Sketcher.Constraint("Equal", 0, 1),
    Sketcher.Constraint("Equal", 1, 2),
    Sketcher.Constraint("Equal", 2, 3),
    Sketcher.Constraint("Equal", 3, 4),
    Sketcher.Constraint("Equal", 4, 5),
    Sketcher.Constraint("Symmetric", 0, 3, 3, 3, -1, 1),
    Sketcher.Constraint("Symmetric", 1, 3, 4, 3, -1, 1),
    Sketcher.Constraint("Symmetric", 2, 3, 5, 3, -1, 1),
    Sketcher.Constraint("Symmetric", 0, 3, 2, 3, -2),
    Sketcher.Constraint("PointOnObject", 1, 3, -2),
    Sketcher.Constraint("Horizontal", 0, 3, 1, 3),
    Sketcher.Constraint("Diameter", 0, Q("6.1 mm")),
    Sketcher.Constraint("DistanceX", 0, 3, -1, 1, Q("42.9 mm")),
    Sketcher.Constraint("DistanceY", -1, 1, 0, 3, Q("22.9 mm")),
])
pocket12 = doc.addObject("PartDesign::Pocket", "Pocket011")
body.addObject(pocket12)
pocket12.Profile = sketch14
pocket12.Length = 1.1
pocket12.Reversed = True
doc.recompute()

fillet3 = doc.addObject("PartDesign::Fillet", "Fillet002")
body.addObject(fillet3)
fillet3.Base = (pocket12, edges_at(pocket12, [
    (-39.85, -22.9, 0),
    (3.05, -22.9, 0),
    (45.95, -22.9, 0),
    (45.95, 22.9, 0),
    (3.05, 22.9, 0),
    (-39.85, 22.9, 0),
]))
fillet3.Radius = 0.5

# Sketch on XY plane
sketch15 = doc.addObject("Sketcher::SketchObject", "Sketch014")
body.addObject(sketch15)
sketch15.AttachmentSupport = (doc.XY_Plane, [""])
sketch15.MapMode = "FlatFace"
sketch15.AttachmentOffset = App.Placement(App.Vector(0, 0, 6), App.Rotation())
sketch15.addGeometry(Part.Circle(App.Vector(-37, 0, 0), App.Vector(0, 0, 1), 2.2), False)
sketch15.addConstraint([
    Sketcher.Constraint("PointOnObject", 0, 3, -1),
    Sketcher.Constraint("Diameter", 0, Q("4.5 mm")),
    Sketcher.Constraint("DistanceX", 0, 3, -1, 1, Q("37 mm")),
])
pocket13 = doc.addObject("PartDesign::Pocket", "Pocket012")
body.addObject(pocket13)
pocket13.Profile = sketch15
pocket13.Type = "UpToFirst"

doc.recompute()
